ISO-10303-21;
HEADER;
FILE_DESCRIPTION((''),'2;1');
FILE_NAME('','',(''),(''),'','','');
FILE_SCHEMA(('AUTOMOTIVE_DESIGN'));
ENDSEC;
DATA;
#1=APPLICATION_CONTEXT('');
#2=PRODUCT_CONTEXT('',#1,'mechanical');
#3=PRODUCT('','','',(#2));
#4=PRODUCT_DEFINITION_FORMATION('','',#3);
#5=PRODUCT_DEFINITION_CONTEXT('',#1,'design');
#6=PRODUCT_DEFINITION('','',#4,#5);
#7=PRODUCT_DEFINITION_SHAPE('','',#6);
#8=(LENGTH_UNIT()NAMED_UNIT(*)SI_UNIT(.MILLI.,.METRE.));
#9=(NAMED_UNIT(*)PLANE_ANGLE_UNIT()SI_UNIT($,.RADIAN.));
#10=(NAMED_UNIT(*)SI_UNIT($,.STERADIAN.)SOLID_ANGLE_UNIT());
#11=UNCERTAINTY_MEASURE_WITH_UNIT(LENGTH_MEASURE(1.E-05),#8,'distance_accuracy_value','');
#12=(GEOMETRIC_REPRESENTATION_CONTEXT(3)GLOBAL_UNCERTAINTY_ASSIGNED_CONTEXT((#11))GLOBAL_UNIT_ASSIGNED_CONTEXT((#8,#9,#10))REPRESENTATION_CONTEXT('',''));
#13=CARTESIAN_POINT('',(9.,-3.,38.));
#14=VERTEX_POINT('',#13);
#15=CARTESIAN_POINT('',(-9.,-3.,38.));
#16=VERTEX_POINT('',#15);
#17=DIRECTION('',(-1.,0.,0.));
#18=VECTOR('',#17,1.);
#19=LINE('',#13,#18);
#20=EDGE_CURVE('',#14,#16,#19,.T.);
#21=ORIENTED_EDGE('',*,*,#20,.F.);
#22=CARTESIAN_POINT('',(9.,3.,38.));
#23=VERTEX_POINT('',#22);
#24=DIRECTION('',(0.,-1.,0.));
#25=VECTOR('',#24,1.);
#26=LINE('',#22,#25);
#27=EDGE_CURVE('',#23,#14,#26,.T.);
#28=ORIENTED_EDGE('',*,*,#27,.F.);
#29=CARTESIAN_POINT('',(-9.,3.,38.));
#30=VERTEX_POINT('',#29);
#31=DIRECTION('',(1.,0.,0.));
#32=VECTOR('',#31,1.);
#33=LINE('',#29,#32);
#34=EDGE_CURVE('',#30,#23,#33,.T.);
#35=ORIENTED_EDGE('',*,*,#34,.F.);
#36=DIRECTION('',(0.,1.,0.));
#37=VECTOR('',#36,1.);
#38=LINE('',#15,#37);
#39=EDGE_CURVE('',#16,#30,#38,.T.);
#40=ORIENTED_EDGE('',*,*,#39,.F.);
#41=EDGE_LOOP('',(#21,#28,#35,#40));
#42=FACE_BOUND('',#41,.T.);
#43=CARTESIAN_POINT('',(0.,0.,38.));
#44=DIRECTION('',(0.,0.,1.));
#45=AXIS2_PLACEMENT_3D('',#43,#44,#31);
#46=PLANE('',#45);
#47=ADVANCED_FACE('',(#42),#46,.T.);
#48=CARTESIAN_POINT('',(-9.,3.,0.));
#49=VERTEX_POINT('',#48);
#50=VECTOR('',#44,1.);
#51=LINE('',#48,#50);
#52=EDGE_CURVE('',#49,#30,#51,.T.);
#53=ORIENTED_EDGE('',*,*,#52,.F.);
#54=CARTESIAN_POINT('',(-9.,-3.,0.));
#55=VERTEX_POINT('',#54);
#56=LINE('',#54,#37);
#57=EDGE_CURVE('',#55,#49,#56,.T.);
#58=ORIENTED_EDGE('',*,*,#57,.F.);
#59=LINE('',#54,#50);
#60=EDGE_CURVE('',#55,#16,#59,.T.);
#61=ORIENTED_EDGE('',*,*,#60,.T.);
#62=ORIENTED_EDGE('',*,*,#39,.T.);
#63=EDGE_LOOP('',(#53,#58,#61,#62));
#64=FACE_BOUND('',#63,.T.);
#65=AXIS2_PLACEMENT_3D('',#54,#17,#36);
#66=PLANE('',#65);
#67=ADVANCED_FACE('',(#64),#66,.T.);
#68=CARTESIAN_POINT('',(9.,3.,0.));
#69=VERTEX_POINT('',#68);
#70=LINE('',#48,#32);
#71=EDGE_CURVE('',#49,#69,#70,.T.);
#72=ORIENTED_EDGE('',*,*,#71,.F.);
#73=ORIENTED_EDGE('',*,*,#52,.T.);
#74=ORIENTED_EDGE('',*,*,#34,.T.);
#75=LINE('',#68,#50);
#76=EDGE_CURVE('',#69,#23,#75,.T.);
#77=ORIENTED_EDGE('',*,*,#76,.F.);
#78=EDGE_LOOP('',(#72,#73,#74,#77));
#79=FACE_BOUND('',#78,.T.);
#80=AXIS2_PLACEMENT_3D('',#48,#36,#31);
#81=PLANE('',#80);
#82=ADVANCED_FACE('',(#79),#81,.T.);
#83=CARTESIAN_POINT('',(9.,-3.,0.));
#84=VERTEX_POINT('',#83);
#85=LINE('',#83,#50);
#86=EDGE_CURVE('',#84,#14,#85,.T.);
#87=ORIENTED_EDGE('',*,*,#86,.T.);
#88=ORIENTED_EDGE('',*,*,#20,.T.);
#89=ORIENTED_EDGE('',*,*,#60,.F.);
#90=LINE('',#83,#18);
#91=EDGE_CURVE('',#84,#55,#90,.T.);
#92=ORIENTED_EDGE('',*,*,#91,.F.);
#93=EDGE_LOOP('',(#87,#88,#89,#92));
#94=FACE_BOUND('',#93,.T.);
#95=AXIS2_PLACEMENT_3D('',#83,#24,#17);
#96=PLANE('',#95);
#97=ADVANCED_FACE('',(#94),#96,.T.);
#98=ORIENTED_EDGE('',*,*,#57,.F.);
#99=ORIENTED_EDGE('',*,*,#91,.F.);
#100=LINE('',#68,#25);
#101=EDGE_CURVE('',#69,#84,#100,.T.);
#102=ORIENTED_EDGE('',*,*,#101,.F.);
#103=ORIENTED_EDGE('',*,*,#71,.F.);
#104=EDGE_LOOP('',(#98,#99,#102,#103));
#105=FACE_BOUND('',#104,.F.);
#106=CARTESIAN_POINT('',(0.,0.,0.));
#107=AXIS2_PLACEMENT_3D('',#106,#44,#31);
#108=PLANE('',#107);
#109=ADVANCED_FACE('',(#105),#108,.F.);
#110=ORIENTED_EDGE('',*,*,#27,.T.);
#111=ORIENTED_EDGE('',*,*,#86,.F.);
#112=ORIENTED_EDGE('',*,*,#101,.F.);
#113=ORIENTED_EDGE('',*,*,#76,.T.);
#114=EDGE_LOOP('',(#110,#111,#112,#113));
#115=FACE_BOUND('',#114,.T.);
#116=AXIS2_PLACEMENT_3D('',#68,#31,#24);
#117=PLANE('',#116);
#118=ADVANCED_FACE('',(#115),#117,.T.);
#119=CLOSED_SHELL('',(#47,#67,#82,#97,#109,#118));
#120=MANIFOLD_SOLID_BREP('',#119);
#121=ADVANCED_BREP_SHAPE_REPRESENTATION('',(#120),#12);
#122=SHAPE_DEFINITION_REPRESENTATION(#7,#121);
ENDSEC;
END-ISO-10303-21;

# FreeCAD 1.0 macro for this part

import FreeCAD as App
import Part
import Sketcher

V = App.Vector
Q = App.Units.Quantity


def add_polygon(sketch, points):
    """Adds a closed chain of lines whose ends are joined by coincident constraints."""
    first, n = sketch.GeometryCount, len(points)
    for a, b in zip(points, points[1:] + points[:1]):
        sketch.addGeometry(Part.LineSegment(App.Vector(*a, 0), App.Vector(*b, 0)), False)
    for i in range(n):
        sketch.addConstraint(Sketcher.Constraint("Coincident", first + i, 2, first + (i + 1) % n, 1))

doc = App.newDocument("Part")
body = doc.addObject("PartDesign::Body", "Body")

sketch1 = body.newObject("Sketcher::SketchObject", "Sketch")
sketch1.AttachmentSupport = (doc.getObject("XY_Plane"), [""])
sketch1.MapMode = "FlatFace"
add_polygon(sketch1, [(9, 3), (-9, 3), (-9, -3), (9, -3)])
sketch1.addConstraint([
    Sketcher.Constraint("Horizontal", 0),
    Sketcher.Constraint("Vertical", 1),
    Sketcher.Constraint("Horizontal", 2),
    Sketcher.Constraint("Vertical", 3),
    Sketcher.Constraint("Symmetric", 0, 2, 2, 2, -1, 1),
    Sketcher.Constraint("DistanceX", 0, 2, 0, 1, Q("18 mm")),
    Sketcher.Constraint("DistanceY", 1, 2, 1, 1, Q("6 mm")),
])
pad1 = body.newObject("PartDesign::Pad", "Pad")
pad1.Profile = sketch1
pad1.Length = 38

doc.recompute()
